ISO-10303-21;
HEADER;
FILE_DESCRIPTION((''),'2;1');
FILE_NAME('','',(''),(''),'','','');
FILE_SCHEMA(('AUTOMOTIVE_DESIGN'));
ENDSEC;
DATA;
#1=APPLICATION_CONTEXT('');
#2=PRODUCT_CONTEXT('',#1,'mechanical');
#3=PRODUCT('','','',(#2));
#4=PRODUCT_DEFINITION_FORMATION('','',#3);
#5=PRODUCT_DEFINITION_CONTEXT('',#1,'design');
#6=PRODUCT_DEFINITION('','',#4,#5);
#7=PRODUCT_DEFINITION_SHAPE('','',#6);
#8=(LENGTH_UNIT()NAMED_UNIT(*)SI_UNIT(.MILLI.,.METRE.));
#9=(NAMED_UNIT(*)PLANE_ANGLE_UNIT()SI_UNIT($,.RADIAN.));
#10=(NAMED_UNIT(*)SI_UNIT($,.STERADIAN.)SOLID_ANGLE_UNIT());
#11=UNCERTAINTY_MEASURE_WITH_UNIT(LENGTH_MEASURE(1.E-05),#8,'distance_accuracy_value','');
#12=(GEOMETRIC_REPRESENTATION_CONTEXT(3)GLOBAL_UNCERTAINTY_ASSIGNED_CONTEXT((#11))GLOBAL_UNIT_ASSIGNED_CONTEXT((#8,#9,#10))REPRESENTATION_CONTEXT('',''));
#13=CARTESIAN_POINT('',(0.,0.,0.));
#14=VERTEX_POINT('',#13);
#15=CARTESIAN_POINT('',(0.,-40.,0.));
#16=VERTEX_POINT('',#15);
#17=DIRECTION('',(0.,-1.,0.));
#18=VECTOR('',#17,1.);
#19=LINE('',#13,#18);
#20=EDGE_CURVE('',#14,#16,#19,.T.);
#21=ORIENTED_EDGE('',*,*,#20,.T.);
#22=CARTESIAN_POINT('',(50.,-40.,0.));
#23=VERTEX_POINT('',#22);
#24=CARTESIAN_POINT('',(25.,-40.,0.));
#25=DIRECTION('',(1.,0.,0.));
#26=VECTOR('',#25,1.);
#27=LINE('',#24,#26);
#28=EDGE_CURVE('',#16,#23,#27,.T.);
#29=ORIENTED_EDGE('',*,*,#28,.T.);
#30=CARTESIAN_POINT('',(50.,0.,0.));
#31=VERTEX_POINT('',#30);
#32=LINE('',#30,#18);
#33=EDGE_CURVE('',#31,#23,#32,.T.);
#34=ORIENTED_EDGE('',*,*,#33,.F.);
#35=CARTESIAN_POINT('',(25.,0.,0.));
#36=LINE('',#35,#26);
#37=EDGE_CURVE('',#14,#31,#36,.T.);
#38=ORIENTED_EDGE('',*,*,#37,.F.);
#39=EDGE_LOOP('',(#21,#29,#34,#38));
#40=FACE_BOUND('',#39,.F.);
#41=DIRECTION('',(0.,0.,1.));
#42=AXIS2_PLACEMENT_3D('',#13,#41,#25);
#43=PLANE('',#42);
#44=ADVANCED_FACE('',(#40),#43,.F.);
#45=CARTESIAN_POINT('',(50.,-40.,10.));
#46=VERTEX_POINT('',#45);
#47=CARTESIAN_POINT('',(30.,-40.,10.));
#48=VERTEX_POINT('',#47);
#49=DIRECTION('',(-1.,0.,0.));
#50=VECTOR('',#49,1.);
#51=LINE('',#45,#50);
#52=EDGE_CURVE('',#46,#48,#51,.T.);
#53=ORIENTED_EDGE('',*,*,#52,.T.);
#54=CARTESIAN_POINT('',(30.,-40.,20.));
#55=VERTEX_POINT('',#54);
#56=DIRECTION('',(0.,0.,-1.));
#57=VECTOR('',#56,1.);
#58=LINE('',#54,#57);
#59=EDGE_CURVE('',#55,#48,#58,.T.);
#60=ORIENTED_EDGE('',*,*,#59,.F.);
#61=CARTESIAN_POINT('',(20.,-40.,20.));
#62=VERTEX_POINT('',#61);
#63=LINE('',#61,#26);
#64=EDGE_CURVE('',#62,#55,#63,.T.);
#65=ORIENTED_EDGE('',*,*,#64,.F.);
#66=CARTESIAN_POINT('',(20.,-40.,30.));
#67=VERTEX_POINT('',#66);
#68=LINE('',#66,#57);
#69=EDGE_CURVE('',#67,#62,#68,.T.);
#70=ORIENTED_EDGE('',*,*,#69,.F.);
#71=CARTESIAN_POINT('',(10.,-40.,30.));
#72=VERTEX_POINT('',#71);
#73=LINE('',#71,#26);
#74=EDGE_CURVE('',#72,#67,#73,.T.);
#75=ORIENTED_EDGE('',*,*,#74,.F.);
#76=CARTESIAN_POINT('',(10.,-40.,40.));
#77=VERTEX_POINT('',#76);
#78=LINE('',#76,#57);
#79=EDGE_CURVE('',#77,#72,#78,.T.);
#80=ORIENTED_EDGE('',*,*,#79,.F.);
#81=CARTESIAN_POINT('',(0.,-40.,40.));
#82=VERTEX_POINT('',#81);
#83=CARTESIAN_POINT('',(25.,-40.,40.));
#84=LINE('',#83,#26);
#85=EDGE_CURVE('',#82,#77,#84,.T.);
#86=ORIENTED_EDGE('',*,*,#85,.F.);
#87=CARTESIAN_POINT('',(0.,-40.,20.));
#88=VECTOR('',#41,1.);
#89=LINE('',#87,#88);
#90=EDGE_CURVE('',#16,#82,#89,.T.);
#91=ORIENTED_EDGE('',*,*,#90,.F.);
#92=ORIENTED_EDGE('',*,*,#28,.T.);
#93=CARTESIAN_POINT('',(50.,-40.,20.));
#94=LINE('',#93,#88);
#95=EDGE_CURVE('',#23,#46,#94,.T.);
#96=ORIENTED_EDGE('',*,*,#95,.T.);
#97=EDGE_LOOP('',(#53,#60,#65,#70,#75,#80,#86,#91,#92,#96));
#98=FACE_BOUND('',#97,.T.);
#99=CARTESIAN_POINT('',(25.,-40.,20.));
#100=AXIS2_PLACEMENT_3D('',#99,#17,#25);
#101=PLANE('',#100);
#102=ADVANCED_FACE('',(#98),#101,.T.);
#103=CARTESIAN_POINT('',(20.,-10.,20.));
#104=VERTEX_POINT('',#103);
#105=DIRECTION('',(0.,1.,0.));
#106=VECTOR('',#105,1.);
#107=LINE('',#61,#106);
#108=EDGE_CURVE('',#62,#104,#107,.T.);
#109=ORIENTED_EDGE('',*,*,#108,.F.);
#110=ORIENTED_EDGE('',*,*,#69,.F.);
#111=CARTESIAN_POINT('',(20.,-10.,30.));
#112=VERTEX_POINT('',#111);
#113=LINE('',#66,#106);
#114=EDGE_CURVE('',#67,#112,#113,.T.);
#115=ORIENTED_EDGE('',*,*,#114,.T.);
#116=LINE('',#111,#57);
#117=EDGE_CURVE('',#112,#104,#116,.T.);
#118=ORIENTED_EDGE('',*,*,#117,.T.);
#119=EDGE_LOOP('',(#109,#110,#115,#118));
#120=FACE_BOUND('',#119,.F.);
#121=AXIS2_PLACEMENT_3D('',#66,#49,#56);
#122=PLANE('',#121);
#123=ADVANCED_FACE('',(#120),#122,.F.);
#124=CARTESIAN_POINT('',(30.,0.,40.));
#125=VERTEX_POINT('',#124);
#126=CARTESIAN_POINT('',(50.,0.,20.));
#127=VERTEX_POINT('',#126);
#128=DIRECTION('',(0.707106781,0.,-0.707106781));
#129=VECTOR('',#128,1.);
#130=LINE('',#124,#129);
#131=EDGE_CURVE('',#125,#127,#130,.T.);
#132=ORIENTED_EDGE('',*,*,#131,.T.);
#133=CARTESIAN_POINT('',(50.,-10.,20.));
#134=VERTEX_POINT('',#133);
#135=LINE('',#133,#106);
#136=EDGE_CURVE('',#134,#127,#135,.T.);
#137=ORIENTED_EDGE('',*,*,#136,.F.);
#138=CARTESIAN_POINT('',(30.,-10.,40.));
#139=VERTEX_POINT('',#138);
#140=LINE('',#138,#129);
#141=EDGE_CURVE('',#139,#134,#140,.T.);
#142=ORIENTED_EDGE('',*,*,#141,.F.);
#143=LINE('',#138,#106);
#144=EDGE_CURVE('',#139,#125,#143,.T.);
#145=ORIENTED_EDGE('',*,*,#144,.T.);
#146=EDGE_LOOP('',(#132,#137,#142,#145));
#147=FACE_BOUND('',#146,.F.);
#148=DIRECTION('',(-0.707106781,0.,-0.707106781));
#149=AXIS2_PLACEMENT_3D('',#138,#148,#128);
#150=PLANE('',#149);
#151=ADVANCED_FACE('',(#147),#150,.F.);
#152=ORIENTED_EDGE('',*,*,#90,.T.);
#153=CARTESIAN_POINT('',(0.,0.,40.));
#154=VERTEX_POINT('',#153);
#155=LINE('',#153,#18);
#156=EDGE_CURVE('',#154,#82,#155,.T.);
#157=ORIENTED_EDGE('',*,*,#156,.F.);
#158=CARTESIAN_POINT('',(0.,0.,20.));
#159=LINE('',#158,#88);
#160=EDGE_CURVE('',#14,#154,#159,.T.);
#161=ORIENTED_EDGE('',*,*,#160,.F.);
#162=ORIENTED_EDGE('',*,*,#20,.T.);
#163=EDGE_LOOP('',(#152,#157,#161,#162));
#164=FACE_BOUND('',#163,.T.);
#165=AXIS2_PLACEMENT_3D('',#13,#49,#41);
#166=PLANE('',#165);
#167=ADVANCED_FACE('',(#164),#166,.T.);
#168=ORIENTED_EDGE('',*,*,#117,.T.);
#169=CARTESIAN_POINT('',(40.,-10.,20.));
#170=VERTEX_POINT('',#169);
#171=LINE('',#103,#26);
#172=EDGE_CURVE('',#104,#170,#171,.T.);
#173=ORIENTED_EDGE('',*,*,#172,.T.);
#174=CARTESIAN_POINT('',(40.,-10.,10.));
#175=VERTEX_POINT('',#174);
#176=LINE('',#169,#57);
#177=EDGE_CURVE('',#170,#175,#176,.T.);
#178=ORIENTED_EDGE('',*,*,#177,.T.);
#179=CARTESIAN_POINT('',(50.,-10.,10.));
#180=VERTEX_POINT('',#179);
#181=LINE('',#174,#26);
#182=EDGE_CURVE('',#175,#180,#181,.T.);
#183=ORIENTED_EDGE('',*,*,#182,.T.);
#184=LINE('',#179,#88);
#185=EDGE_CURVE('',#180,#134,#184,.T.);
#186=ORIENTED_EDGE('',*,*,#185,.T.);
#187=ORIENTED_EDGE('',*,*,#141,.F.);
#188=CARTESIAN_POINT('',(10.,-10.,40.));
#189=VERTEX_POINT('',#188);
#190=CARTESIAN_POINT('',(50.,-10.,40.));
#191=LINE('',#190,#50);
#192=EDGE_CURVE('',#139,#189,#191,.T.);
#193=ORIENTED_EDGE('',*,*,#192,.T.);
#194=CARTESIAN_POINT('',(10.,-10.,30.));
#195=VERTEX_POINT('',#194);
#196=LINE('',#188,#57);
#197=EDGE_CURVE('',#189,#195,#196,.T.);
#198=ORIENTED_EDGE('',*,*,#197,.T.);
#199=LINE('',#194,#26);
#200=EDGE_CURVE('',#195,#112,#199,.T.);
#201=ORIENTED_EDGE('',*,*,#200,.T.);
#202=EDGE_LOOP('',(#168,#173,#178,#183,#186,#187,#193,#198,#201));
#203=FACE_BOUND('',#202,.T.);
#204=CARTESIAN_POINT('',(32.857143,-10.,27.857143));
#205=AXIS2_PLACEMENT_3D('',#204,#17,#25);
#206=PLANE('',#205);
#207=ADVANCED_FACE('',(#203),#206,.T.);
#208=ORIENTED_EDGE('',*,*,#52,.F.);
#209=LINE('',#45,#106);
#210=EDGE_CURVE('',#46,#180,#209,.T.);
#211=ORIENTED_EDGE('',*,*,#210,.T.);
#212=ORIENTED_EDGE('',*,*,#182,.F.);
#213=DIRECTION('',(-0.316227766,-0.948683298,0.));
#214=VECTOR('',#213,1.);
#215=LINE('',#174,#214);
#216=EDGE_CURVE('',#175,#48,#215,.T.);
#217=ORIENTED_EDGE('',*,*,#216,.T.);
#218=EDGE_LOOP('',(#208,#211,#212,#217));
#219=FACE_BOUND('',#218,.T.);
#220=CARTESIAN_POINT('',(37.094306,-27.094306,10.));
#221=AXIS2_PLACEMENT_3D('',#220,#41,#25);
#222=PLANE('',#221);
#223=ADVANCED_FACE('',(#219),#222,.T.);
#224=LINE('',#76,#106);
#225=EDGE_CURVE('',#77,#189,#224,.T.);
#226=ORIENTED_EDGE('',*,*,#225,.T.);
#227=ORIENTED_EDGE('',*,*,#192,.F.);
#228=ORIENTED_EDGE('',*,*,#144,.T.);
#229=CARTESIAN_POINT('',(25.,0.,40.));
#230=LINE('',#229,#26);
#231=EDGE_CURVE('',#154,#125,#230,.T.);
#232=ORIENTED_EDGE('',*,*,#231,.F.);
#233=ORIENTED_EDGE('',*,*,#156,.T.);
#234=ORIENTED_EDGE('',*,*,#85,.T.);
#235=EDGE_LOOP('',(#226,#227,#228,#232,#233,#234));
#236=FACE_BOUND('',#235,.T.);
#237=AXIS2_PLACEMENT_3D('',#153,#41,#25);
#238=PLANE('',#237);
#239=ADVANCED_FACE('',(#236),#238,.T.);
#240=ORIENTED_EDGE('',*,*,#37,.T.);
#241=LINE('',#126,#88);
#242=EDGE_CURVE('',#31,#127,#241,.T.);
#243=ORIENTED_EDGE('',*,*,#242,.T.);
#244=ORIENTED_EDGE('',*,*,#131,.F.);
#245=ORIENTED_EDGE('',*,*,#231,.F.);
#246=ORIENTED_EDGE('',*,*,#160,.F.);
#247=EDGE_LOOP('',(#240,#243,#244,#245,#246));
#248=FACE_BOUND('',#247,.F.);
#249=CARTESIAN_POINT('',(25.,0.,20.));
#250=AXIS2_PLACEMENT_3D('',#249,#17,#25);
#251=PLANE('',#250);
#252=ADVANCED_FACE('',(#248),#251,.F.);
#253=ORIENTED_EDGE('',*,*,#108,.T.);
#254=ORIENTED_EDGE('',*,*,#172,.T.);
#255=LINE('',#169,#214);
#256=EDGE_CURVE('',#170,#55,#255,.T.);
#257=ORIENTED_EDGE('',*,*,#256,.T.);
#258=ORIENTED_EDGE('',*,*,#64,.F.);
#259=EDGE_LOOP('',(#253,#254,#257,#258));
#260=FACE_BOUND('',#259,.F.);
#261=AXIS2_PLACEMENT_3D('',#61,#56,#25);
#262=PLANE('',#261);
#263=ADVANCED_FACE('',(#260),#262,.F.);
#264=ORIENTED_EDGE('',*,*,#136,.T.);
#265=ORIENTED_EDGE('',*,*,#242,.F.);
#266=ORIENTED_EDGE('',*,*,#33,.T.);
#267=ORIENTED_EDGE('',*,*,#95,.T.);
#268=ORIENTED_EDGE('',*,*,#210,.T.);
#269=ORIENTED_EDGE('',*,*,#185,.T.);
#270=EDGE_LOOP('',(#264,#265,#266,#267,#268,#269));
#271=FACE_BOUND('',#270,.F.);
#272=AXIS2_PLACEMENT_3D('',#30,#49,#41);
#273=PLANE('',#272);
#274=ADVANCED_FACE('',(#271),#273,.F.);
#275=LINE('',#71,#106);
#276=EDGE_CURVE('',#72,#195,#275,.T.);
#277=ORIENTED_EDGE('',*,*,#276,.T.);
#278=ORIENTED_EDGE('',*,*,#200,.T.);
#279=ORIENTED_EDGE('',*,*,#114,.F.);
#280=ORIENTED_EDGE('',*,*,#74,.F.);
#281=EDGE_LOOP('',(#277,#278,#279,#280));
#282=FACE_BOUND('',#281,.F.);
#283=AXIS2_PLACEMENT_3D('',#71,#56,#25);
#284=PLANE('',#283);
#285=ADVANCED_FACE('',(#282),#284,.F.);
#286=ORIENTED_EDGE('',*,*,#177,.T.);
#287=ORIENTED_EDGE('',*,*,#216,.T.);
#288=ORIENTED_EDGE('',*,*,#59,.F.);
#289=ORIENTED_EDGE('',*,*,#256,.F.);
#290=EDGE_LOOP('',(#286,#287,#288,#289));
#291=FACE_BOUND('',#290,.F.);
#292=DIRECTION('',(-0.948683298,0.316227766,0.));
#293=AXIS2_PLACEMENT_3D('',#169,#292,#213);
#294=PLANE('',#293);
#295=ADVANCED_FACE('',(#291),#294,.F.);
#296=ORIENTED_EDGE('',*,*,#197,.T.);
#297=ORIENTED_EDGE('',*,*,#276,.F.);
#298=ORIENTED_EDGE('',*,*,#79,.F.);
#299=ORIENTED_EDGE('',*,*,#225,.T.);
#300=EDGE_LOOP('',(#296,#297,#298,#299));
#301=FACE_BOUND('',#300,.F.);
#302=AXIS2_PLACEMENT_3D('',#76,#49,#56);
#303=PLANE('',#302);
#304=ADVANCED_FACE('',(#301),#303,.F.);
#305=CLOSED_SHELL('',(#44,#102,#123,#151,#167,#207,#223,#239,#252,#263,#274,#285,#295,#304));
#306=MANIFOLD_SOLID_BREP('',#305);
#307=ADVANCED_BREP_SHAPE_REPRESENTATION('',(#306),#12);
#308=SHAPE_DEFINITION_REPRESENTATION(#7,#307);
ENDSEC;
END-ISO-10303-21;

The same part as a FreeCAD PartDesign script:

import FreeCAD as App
import Part
import Sketcher
Q = App.Units.Quantity

doc = App.newDocument("Part")
body = doc.addObject("PartDesign::Body", "Body")

# Sketch on XZ plane
sketch1 = body.newObject("Sketcher::SketchObject", "Sketch")
sketch1.AttachmentSupport = (doc.getObject("XZ_Plane"), [""])
sketch1.MapMode = "FlatFace"
sketch1.addGeometry(Part.LineSegment(App.Vector(0, 40, 0), App.Vector(0, 0, 0)), False)
sketch1.addGeometry(Part.LineSegment(App.Vector(0, 0, 0), App.Vector(50, 0, 0)), False)
sketch1.addGeometry(Part.LineSegment(App.Vector(50, 0, 0), App.Vector(50, 40, 0)), False)
sketch1.addGeometry(Part.LineSegment(App.Vector(50, 40, 0), App.Vector(0, 40, 0)), False)
sketch1.addConstraint(Sketcher.Constraint("Coincident", 0, 2, 1, 1))
sketch1.addConstraint(Sketcher.Constraint("Coincident", 1, 2, 2, 1))
sketch1.addConstraint(Sketcher.Constraint("Coincident", 2, 2, 3, 1))
sketch1.addConstraint(Sketcher.Constraint("Coincident", 3, 2, 0, 1))
sketch1.addConstraint(Sketcher.Constraint("Vertical", 0))
sketch1.addConstraint(Sketcher.Constraint("Horizontal", 1))
sketch1.addConstraint(Sketcher.Constraint("Vertical", 2))
sketch1.addConstraint(Sketcher.Constraint("Horizontal", 3))
sketch1.addConstraint(Sketcher.Constraint("Coincident", 0, 2, -1, 1))
sketch1.addConstraint(Sketcher.Constraint("DistanceX", 1, 1, 1, 2, Q("50 mm")))
sketch1.addConstraint(Sketcher.Constraint("DistanceY", 0, 2, 0, 1, Q("40 mm")))
pad1 = body.newObject("PartDesign::Pad", "Pad")
pad1.Profile = sketch1
pad1.Length = 40

# Sketch on XZ plane
sketch2 = body.newObject("Sketcher::SketchObject", "Sketch001")
sketch2.AttachmentSupport = (doc.getObject("XZ_Plane"), [""])
sketch2.MapMode = "FlatFace"
sketch2.AttachmentOffset = App.Placement(App.Vector(0, 0, 40), App.Rotation())
sketch2.addGeometry(Part.LineSegment(App.Vector(50, 10, 0), App.Vector(50, 40, 0)), False)
sketch2.addGeometry(Part.LineSegment(App.Vector(50, 40, 0), App.Vector(10, 40, 0)), False)
sketch2.addGeometry(Part.LineSegment(App.Vector(10, 40, 0), App.Vector(10, 30, 0)), False)
sketch2.addGeometry(Part.LineSegment(App.Vector(10, 30, 0), App.Vector(20, 30, 0)), False)
sketch2.addGeometry(Part.LineSegment(App.Vector(20, 30, 0), App.Vector(20, 20, 0)), False)
sketch2.addGeometry(Part.LineSegment(App.Vector(20, 20, 0), App.Vector(40, 20, 0)), False)
sketch2.addGeometry(Part.LineSegment(App.Vector(40, 20, 0), App.Vector(40, 10, 0)), False)
sketch2.addGeometry(Part.LineSegment(App.Vector(40, 10, 0), App.Vector(50, 10, 0)), False)
sketch2.addConstraint(Sketcher.Constraint("Coincident", 0, 2, 1, 1))
sketch2.addConstraint(Sketcher.Constraint("Coincident", 1, 2, 2, 1))
sketch2.addConstraint(Sketcher.Constraint("Coincident", 2, 2, 3, 1))
sketch2.addConstraint(Sketcher.Constraint("Coincident", 3, 2, 4, 1))
sketch2.addConstraint(Sketcher.Constraint("Coincident", 4, 2, 5, 1))
sketch2.addConstraint(Sketcher.Constraint("Coincident", 5, 2, 6, 1))
sketch2.addConstraint(Sketcher.Constraint("Coincident", 6, 2, 7, 1))
sketch2.addConstraint(Sketcher.Constraint("Coincident", 7, 2, 0, 1))
sketch2.addConstraint(Sketcher.Constraint("Vertical", 0))
sketch2.addConstraint(Sketcher.Constraint("Horizontal", 1))
sketch2.addConstraint(Sketcher.Constraint("Vertical", 2))
sketch2.addConstraint(Sketcher.Constraint("Horizontal", 3))
sketch2.addConstraint(Sketcher.Constraint("Vertical", 4))
sketch2.addConstraint(Sketcher.Constraint("Horizontal", 5))
sketch2.addConstraint(Sketcher.Constraint("Vertical", 6))
sketch2.addConstraint(Sketcher.Constraint("Horizontal", 7))
sketch2.addConstraint(Sketcher.Constraint("Equal", 3, 7))
sketch2.addConstraint(Sketcher.Constraint("Equal", 7, 2))
sketch2.addConstraint(Sketcher.Constraint("Equal", 2, 4))
sketch2.addConstraint(Sketcher.Constraint("Equal", 4, 6))
sketch2.addConstraint(Sketcher.Constraint("DistanceX", 1, 2, 1, 1, Q("40 mm")))
sketch2.addConstraint(Sketcher.Constraint("DistanceX", 3, 1, 3, 2, Q("10 mm")))
sketch2.addConstraint(Sketcher.Constraint("DistanceX", -1, 1, 0, 2, Q("50 mm")))
sketch2.addConstraint(Sketcher.Constraint("DistanceY", -1, 1, 0, 2, Q("40 mm")))
pocket1 = body.newObject("PartDesign::Pocket", "Pocket")
pocket1.Profile = sketch2
pocket1.Length = 30

# Sketch on XZ plane
sketch3 = body.newObject("Sketcher::SketchObject", "Sketch002")
sketch3.AttachmentSupport = (doc.getObject("XZ_Plane"), [""])
sketch3.MapMode = "FlatFace"
sketch3.AttachmentOffset = App.Placement(App.Vector(0, 0, 10), App.Rotation())
sketch3.addGeometry(Part.LineSegment(App.Vector(50, 20, 0), App.Vector(50, 40, 0)), False)
sketch3.addGeometry(Part.LineSegment(App.Vector(50, 40, 0), App.Vector(30, 40, 0)), False)
sketch3.addGeometry(Part.LineSegment(App.Vector(30, 40, 0), App.Vector(50, 20, 0)), False)
sketch3.addConstraint(Sketcher.Constraint("Coincident", 0, 2, 1, 1))
sketch3.addConstraint(Sketcher.Constraint("Coincident", 1, 2, 2, 1))
sketch3.addConstraint(Sketcher.Constraint("Coincident", 2, 2, 0, 1))
sketch3.addConstraint(Sketcher.Constraint("Vertical", 0))
sketch3.addConstraint(Sketcher.Constraint("Horizontal", 1))
sketch3.addConstraint(Sketcher.Constraint("Equal", 1, 0))
sketch3.addConstraint(Sketcher.Constraint("DistanceX", 1, 2, 1, 1, Q("20 mm")))
sketch3.addConstraint(Sketcher.Constraint("DistanceX", -1, 1, 0, 2, Q("50 mm")))
sketch3.addConstraint(Sketcher.Constraint("DistanceY", -1, 1, 0, 2, Q("40 mm")))
pocket2 = body.newObject("PartDesign::Pocket", "Pocket001")
pocket2.Profile = sketch3
pocket2.Length = 10

# Sketch on XY plane
sketch4 = body.newObject("Sketcher::SketchObject", "Sketch003")
sketch4.AttachmentSupport = (doc.getObject("XY_Plane"), [""])
sketch4.MapMode = "FlatFace"
sketch4.AttachmentOffset = App.Placement(App.Vector(0, 0, 20), App.Rotation())
sketch4.addGeometry(Part.LineSegment(App.Vector(40, -40, 0), App.Vector(40, -10, 0)), False)
sketch4.addGeometry(Part.LineSegment(App.Vector(40, -10, 0), App.Vector(30, -40, 0)), False)
sketch4.addGeometry(Part.LineSegment(App.Vector(30, -40, 0), App.Vector(40, -40, 0)), False)
sketch4.addConstraint(Sketcher.Constraint("Coincident", 0, 2, 1, 1))
sketch4.addConstraint(Sketcher.Constraint("Coincident", 1, 2, 2, 1))
sketch4.addConstraint(Sketcher.Constraint("Coincident", 2, 2, 0, 1))
sketch4.addConstraint(Sketcher.Constraint("Vertical", 0))
sketch4.addConstraint(Sketcher.Constraint("Horizontal", 2))
sketch4.addConstraint(Sketcher.Constraint("DistanceX", 2, 1, 2, 2, Q("10 mm")))
sketch4.addConstraint(Sketcher.Constraint("DistanceY", 0, 1, 0, 2, Q("30 mm")))
sketch4.addConstraint(Sketcher.Constraint("DistanceX", -1, 1, 0, 2, Q("40 mm")))
sketch4.addConstraint(Sketcher.Constraint("DistanceY", 0, 2, -1, 1, Q("10 mm")))
pocket3 = body.newObject("PartDesign::Pocket", "Pocket002")
pocket3.Profile = sketch4
pocket3.Length = 10

doc.recompute()
